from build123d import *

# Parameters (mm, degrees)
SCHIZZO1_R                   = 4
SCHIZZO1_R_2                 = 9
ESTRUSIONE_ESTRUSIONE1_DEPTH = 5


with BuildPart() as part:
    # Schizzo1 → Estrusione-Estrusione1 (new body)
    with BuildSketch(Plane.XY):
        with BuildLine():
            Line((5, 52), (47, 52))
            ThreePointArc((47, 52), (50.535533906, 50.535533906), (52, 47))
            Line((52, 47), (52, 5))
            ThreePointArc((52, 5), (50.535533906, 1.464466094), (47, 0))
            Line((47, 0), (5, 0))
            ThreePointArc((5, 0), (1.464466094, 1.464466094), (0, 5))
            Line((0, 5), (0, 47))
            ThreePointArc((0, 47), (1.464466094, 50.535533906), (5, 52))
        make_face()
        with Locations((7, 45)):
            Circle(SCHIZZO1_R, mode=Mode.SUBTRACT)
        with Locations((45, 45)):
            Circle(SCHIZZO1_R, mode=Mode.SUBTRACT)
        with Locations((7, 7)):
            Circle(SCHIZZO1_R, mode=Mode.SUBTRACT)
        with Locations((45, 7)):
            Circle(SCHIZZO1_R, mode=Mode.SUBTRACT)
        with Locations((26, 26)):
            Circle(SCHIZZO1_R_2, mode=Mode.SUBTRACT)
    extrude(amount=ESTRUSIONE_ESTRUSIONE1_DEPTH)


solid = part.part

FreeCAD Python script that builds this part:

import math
import FreeCAD as App
import Part
import Sketcher
from FreeCAD import Vector
Q = App.Units.Quantity

doc = App.newDocument("Part")
body = doc.addObject("PartDesign::Body", "Body")

sketch1 = body.newObject("Sketcher::SketchObject", "Sketch")
sketch1.AttachmentSupport = (doc.getObject("XY_Plane"), [""])
sketch1.MapMode = "FlatFace"
sketch1.addGeometry([
    Part.LineSegment(Vector(47, 52, 0), Vector(5, 52, 0)),
    Part.ArcOfCircle(Part.Circle(Vector(5, 47, 0), Vector(0, 0, 1), 5), math.radians(90), math.radians(180)),
    Part.LineSegment(Vector(0, 47, 0), Vector(0, 5, 0)),
    Part.ArcOfCircle(Part.Circle(Vector(5, 5, 0), Vector(0, 0, 1), 5), math.radians(180), math.radians(270)),
    Part.LineSegment(Vector(5, 0, 0), Vector(47, 0, 0)),
    Part.ArcOfCircle(Part.Circle(Vector(47, 5, 0), Vector(0, 0, 1), 5), math.radians(-90), math.radians(0)),
    Part.LineSegment(Vector(52, 5, 0), Vector(52, 47, 0)),
    Part.ArcOfCircle(Part.Circle(Vector(47, 47, 0), Vector(0, 0, 1), 5), math.radians(0), math.radians(90)),
    Part.Circle(Vector(45, 7, 0), Vector(0, 0, 1), 4),
    Part.Circle(Vector(7, 7, 0), Vector(0, 0, 1), 4),
    Part.Circle(Vector(45, 45, 0), Vector(0, 0, 1), 4),
    Part.Circle(Vector(26, 26, 0), Vector(0, 0, 1), 9),
    Part.Circle(Vector(7, 45, 0), Vector(0, 0, 1), 4),
], False)
sketch1.addConstraint([
    Sketcher.Constraint("Tangent", 0, 2, 1, 1),
    Sketcher.Constraint("Tangent", 1, 2, 2, 1),
    Sketcher.Constraint("Tangent", 2, 2, 3, 1),
    Sketcher.Constraint("Tangent", 3, 2, 4, 1),
    Sketcher.Constraint("Tangent", 4, 2, 5, 1),
    Sketcher.Constraint("Tangent", 5, 2, 6, 1),
    Sketcher.Constraint("Tangent", 6, 2, 7, 1),
    Sketcher.Constraint("Tangent", 7, 2, 0, 1),
    Sketcher.Constraint("Horizontal", 0),
    Sketcher.Constraint("Vertical", 2),
    Sketcher.Constraint("Horizontal", 4),
    Sketcher.Constraint("Vertical", 6),
    Sketcher.Constraint("Equal", 1, 3),
    Sketcher.Constraint("Equal", 3, 5),
    Sketcher.Constraint("Equal", 5, 7),
    Sketcher.Constraint("Equal", 8, 9),
    Sketcher.Constraint("Equal", 9, 10),
    Sketcher.Constraint("Equal", 10, 12),
    Sketcher.Constraint("PointOnObject", 1, 2, -2),
    Sketcher.Constraint("PointOnObject", 3, 2, -1),
    Sketcher.Constraint("Horizontal", 8, 3, 9, 3),
    Sketcher.Constraint("Horizontal", 10, 3, 12, 3),
    Sketcher.Constraint("Vertical", 8, 3, 10, 3),
    Sketcher.Constraint("Vertical", 9, 3, 12, 3),
    Sketcher.Constraint("Equal", 4, 2),
    Sketcher.Constraint("Diameter", 8, Q("8 mm")),
    Sketcher.Constraint("Diameter", 11, Q("18 mm")),
    Sketcher.Constraint("Radius", 1, Q("5 mm")),
    Sketcher.Constraint("DistanceX", 0, 2, 0, 1, Q("42 mm")),
    Sketcher.Constraint("DistanceX", -1, 1, 8, 3, Q("45 mm")),
    Sketcher.Constraint("DistanceY", -1, 1, 8, 3, Q("7 mm")),
    Sketcher.Constraint("DistanceX", -1, 1, 9, 3, Q("7 mm")),
    Sketcher.Constraint("DistanceY", -1, 1, 10, 3, Q("45 mm")),
    Sketcher.Constraint("DistanceX", -1, 1, 11, 3, Q("26 mm")),
    Sketcher.Constraint("DistanceY", -1, 1, 11, 3, Q("26 mm")),
])
pad1 = body.newObject("PartDesign::Pad", "Pad")
pad1.Profile = sketch1
pad1.Length = 5

doc.recompute()
